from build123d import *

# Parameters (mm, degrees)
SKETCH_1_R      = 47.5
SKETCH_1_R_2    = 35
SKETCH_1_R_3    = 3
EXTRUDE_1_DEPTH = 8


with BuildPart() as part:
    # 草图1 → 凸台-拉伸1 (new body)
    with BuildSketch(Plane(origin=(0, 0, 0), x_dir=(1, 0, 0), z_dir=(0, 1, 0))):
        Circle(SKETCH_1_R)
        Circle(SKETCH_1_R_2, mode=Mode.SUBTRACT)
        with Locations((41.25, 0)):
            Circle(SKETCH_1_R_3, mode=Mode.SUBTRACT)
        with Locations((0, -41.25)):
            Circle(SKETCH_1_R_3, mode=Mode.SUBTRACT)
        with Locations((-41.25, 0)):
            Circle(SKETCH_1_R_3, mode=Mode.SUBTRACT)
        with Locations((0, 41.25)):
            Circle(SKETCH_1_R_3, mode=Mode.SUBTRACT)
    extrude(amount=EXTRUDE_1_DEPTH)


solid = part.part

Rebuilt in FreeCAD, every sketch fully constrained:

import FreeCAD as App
import Part
import Sketcher
from FreeCAD import Vector

doc = App.newDocument("Part")
body = doc.addObject("PartDesign::Body", "Body")

# Sketch on XZ plane
sketch1 = body.newObject("Sketcher::SketchObject", "Sketch")
sketch1.AttachmentSupport = (doc.getObject("XZ_Plane"), [""])
sketch1.MapMode = "FlatFace"
sketch1.addGeometry(Part.Circle(Vector(0, 0, 0), Vector(0, 0, 1), 47.5), False)
sketch1.addGeometry(Part.Circle(Vector(0, 41.2, 0), Vector(0, 0, 1), 3), False)
sketch1.addGeometry(Part.Circle(Vector(-41.2, 0, 0), Vector(0, 0, 1), 3), False)
sketch1.addGeometry(Part.Circle(Vector(0, 0, 0), Vector(0, 0, 1), 35), False)
sketch1.addGeometry(Part.Circle(Vector(41.2, 0, 0), Vector(0, 0, 1), 3), False)
sketch1.addGeometry(Part.Circle(Vector(0, -41.2, 0), Vector(0, 0, 1), 3), False)
sketch1.addConstraint(Sketcher.Constraint("Coincident", 0, 3, -1, 1))
sketch1.addConstraint(Sketcher.Constraint("Coincident", 3, 3, -1, 1))
sketch1.addConstraint(Sketcher.Constraint("Equal", 1, 2))
sketch1.addConstraint(Sketcher.Constraint("Equal", 2, 4))
sketch1.addConstraint(Sketcher.Constraint("Equal", 4, 5))
sketch1.addConstraint(Sketcher.Constraint("Symmetric", 2, 3, 4, 3, -1, 1))
sketch1.addConstraint(Sketcher.Constraint("Symmetric", 1, 3, 5, 3, -1, 1))
sketch1.addConstraint(Sketcher.Constraint("PointOnObject", 1, 3, -2))
sketch1.addConstraint(Sketcher.Constraint("PointOnObject", 2, 3, -1))
sketch1.addConstraint(Sketcher.Constraint("Diameter", 0, 95.0))
sketch1.addConstraint(Sketcher.Constraint("Diameter", 1, 6.0))
sketch1.addConstraint(Sketcher.Constraint("Diameter", 3, 70.0))
sketch1.addConstraint(Sketcher.Constraint("DistanceX", 2, 3, 4, 3, 82.5))
sketch1.addConstraint(Sketcher.Constraint("DistanceY", 5, 3, 1, 3, 82.5))
pad1 = body.newObject("PartDesign::Pad", "Pad")
pad1.Profile = sketch1
pad1.Length = 8
pad1.Reversed = True

doc.recompute()
